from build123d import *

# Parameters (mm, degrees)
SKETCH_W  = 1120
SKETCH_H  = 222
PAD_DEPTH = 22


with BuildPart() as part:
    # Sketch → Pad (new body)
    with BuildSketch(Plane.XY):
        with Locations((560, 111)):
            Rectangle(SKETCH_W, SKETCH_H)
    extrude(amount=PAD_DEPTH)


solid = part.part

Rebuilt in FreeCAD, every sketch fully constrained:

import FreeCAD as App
import Part
import Sketcher
Q = App.Units.Quantity

doc = App.newDocument("Part")
params = doc.addObject("Spreadsheet::Sheet", "Params")
for row, (alias, value) in enumerate([
    ("sketch1_width", "1120 mm"),
    ("sketch1_height", "222 mm"),
    ("pad1_length", "22 mm"),
], start=1):
    params.set(f"A{row}", alias)
    params.set(f"B{row}", "=" + value)
    params.setAlias(f"B{row}", alias)

body = doc.addObject("PartDesign::Body", "Body")

# Sketch on XY plane
sketch1 = body.newObject("Sketcher::SketchObject", "Sketch")
sketch1.AttachmentSupport = (doc.getObject("XY_Plane"), [""])
sketch1.MapMode = "FlatFace"
sketch1.addGeometry(Part.LineSegment(App.Vector(0, 222, 0), App.Vector(0, 0, 0)), False)
sketch1.addGeometry(Part.LineSegment(App.Vector(0, 0, 0), App.Vector(1120, 0, 0)), False)
sketch1.addGeometry(Part.LineSegment(App.Vector(1120, 0, 0), App.Vector(1120, 222, 0)), False)
sketch1.addGeometry(Part.LineSegment(App.Vector(1120, 222, 0), App.Vector(0, 222, 0)), False)
sketch1.addConstraint(Sketcher.Constraint("Coincident", 0, 2, 1, 1))
sketch1.addConstraint(Sketcher.Constraint("Coincident", 1, 2, 2, 1))
sketch1.addConstraint(Sketcher.Constraint("Coincident", 2, 2, 3, 1))
sketch1.addConstraint(Sketcher.Constraint("Coincident", 3, 2, 0, 1))
sketch1.addConstraint(Sketcher.Constraint("Vertical", 0))
sketch1.addConstraint(Sketcher.Constraint("Horizontal", 1))
sketch1.addConstraint(Sketcher.Constraint("Vertical", 2))
sketch1.addConstraint(Sketcher.Constraint("Horizontal", 3))
sketch1.addConstraint(Sketcher.Constraint("Coincident", 0, 2, -1, 1))
sketch1.addConstraint(Sketcher.Constraint("DistanceX", 1, 1, 1, 2, Q("1120 mm")))
sketch1.addConstraint(Sketcher.Constraint("DistanceY", 0, 2, 0, 1, Q("222 mm")))
sketch1.setExpression("Constraints[9]", "Params.sketch1_width")
sketch1.setExpression("Constraints[10]", "Params.sketch1_height")
pad1 = body.newObject("PartDesign::Pad", "Pad")
pad1.Profile = sketch1
pad1.setExpression("Length", "Params.pad1_length")

doc.recompute()
